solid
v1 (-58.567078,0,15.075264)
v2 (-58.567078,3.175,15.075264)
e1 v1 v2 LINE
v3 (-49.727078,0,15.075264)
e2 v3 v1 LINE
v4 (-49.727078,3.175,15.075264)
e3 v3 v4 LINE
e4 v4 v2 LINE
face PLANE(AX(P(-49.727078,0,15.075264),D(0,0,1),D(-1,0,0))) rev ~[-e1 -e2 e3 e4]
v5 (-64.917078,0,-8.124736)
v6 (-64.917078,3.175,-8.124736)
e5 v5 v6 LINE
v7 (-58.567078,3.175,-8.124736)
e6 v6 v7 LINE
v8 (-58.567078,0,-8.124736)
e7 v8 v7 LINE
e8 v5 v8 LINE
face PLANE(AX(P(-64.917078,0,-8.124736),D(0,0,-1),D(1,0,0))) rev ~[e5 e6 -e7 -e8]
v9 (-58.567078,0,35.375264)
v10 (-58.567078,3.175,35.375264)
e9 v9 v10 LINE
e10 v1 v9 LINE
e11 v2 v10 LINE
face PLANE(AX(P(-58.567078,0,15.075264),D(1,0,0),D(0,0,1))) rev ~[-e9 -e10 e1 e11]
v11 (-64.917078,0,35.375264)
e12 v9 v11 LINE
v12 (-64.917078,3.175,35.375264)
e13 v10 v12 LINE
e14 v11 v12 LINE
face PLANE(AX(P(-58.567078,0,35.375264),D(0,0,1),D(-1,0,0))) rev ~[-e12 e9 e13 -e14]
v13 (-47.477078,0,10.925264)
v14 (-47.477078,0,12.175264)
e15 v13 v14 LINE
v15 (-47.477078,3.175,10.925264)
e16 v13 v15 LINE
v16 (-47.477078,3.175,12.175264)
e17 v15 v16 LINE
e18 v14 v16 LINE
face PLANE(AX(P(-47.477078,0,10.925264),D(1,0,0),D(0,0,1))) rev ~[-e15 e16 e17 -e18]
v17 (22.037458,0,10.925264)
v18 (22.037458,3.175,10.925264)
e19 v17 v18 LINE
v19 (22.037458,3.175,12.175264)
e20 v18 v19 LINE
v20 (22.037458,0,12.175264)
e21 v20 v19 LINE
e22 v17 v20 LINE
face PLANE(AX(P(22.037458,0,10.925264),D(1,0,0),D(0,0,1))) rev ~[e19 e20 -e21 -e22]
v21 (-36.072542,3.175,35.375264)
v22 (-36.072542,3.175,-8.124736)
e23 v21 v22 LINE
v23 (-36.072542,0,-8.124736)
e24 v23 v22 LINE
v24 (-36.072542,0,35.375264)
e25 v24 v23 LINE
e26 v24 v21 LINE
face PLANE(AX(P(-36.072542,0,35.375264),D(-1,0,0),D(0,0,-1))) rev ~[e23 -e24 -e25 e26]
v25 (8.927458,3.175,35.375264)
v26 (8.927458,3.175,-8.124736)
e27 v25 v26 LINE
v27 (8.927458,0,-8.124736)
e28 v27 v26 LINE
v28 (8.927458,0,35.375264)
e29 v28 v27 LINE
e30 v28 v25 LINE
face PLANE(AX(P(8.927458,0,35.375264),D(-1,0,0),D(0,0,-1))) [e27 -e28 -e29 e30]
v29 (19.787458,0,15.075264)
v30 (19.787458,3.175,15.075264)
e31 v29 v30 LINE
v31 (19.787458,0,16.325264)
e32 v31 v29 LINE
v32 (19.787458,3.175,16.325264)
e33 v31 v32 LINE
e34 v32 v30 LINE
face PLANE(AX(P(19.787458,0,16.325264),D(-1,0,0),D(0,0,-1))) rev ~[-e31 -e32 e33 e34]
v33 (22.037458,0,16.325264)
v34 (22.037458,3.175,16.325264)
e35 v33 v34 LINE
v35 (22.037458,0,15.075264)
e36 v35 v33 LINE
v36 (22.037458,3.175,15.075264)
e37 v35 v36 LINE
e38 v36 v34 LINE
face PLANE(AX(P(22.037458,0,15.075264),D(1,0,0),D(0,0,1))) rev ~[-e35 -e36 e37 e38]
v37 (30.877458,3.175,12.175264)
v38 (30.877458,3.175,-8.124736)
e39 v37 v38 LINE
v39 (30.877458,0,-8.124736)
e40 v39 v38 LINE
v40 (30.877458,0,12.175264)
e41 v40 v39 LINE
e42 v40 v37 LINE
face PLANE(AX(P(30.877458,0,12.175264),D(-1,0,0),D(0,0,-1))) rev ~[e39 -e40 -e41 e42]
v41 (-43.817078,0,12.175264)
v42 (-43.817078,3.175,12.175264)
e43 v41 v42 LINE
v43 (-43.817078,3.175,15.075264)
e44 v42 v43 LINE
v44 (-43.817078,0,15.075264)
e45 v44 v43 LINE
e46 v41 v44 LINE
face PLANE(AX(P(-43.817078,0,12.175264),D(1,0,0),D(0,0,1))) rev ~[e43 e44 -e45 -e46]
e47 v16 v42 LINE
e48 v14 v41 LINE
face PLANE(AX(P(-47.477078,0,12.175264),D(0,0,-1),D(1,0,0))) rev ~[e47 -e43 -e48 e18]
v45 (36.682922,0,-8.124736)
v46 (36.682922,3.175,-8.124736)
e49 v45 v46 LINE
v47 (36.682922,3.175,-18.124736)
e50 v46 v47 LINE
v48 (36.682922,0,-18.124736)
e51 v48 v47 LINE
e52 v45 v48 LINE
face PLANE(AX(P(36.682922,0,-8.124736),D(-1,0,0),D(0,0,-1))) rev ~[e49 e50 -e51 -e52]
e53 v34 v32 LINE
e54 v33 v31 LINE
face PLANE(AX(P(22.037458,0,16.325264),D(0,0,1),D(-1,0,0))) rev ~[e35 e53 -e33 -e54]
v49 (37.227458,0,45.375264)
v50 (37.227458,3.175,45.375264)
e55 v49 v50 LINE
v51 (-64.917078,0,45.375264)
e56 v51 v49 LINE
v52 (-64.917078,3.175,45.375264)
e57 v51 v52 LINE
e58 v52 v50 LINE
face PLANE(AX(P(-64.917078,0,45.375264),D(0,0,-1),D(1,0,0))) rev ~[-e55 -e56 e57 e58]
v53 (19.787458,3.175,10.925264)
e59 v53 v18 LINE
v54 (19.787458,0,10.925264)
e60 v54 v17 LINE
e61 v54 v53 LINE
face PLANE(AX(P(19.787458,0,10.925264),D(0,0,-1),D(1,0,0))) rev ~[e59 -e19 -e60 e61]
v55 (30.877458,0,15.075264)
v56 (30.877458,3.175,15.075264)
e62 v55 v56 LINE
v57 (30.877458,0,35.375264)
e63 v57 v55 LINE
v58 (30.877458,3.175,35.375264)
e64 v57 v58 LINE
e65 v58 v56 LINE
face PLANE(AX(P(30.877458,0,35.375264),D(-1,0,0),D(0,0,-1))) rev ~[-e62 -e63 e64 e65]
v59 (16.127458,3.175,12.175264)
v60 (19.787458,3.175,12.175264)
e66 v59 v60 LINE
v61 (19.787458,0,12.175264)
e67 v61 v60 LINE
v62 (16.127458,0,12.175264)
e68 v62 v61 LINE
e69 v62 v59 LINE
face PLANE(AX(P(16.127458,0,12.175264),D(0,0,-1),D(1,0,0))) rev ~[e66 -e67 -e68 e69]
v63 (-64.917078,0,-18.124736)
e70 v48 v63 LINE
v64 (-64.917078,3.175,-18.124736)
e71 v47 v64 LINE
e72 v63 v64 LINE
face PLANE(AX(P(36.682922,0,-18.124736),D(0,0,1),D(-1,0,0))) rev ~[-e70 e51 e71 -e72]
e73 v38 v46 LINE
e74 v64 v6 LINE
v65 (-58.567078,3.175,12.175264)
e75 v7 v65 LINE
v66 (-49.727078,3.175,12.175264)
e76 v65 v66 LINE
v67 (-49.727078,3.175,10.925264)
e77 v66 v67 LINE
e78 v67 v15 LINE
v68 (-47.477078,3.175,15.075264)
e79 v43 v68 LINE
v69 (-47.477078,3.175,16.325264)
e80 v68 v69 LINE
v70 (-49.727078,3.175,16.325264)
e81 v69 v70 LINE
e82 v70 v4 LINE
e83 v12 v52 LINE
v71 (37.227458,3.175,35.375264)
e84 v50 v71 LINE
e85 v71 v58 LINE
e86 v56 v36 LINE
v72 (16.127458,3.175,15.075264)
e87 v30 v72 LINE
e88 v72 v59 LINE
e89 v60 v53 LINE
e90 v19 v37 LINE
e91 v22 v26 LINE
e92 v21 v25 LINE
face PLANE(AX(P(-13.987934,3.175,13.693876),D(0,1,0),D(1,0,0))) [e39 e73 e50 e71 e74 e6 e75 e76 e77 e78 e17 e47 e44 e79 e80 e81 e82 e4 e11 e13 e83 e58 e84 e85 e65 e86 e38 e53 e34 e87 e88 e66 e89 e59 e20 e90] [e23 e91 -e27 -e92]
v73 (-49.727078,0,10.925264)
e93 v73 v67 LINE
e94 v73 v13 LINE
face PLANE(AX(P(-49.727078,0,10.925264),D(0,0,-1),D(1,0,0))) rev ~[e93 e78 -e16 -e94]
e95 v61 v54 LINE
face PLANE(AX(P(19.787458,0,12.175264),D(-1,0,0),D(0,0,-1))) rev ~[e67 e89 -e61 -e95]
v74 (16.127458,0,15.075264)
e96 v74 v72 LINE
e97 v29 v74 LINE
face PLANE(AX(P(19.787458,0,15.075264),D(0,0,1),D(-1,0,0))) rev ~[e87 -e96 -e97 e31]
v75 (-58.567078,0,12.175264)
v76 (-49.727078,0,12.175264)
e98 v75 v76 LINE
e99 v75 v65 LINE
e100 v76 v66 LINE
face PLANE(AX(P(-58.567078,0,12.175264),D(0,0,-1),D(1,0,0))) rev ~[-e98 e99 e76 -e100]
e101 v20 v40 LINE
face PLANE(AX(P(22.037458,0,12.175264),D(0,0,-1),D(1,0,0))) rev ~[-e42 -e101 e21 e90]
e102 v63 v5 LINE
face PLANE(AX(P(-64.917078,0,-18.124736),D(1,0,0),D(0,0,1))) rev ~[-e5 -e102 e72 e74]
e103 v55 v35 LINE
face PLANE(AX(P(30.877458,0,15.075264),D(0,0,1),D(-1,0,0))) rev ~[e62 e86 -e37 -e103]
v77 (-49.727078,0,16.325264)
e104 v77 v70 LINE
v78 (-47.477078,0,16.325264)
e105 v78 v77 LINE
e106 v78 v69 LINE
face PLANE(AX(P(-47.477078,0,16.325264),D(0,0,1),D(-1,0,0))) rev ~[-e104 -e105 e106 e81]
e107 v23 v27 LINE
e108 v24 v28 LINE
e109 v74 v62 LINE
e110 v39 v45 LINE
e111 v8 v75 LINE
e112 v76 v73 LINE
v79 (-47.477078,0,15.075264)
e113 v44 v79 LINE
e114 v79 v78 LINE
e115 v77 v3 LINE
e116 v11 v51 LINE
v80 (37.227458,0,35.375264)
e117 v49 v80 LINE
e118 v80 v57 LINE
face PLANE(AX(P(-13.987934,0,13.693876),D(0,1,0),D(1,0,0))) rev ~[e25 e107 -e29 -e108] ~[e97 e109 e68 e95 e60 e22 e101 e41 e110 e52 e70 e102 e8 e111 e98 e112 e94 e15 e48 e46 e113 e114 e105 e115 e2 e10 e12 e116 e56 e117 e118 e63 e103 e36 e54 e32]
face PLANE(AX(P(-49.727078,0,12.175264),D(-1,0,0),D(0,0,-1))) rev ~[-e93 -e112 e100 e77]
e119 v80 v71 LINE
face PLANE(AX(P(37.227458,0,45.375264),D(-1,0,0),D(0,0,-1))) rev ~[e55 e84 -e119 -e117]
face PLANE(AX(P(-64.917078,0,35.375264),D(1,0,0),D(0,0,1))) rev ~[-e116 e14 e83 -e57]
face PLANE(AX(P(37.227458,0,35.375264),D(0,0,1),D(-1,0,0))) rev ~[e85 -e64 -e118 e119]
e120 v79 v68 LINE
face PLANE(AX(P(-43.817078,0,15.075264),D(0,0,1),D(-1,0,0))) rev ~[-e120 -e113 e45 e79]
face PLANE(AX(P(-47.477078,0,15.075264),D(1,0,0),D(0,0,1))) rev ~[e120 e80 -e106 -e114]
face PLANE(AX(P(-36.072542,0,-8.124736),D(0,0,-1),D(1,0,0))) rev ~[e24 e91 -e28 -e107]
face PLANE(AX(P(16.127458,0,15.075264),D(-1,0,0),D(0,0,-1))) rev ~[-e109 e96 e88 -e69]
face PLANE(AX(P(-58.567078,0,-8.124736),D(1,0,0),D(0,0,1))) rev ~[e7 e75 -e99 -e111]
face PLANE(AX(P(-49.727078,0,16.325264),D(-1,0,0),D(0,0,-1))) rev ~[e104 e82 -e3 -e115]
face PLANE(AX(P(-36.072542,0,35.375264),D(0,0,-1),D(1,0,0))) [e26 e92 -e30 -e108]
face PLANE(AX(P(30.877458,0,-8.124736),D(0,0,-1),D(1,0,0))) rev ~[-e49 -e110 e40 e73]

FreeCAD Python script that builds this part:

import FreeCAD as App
import Part
import Sketcher

doc = App.newDocument("Part")
params = doc.addObject("Spreadsheet::Sheet", "Params")
for row, (alias, value) in enumerate([
    ("sketch1_width", "45 mm"),
    ("sketch1_height", "10 mm"),
    ("sketch1_width2", "101.6 mm"),
    ("sketch1_height2", "20.3 mm"),
    ("sketch1_height3", "2.9 mm"),
    ("pad1_length", "3.175 mm"),
], start=1):
    params.set(f"A{row}", alias)
    params.set(f"B{row}", "=" + value)
    params.setAlias(f"B{row}", alias)

body = doc.addObject("PartDesign::Body", "Body")

# Sketch on XZ plane
sketch1 = body.newObject("Sketcher::SketchObject", "Sketch")
sketch1.AttachmentSupport = (doc.getObject("XZ_Plane"), [""])
sketch1.MapMode = "FlatFace"
sketch1.addGeometry(Part.LineSegment(App.Vector(37.2, 45.4, 0), App.Vector(37.2, 35.4, 0)), False)
sketch1.addGeometry(Part.LineSegment(App.Vector(37.2, 35.4, 0), App.Vector(30.9, 35.4, 0)), False)
sketch1.addGeometry(Part.LineSegment(App.Vector(30.9, 35.4, 0), App.Vector(30.9, 15.1, 0)), False)
sketch1.addGeometry(Part.LineSegment(App.Vector(30.9, 15.1, 0), App.Vector(22, 15.1, 0)), False)
sketch1.addGeometry(Part.LineSegment(App.Vector(22, 15.1, 0), App.Vector(22, 16.3, 0)), False)
sketch1.addGeometry(Part.LineSegment(App.Vector(22, 16.3, 0), App.Vector(19.8, 16.3, 0)), False)
sketch1.addGeometry(Part.LineSegment(App.Vector(19.8, 16.3, 0), App.Vector(19.8, 15.1, 0)), False)
sketch1.addGeometry(Part.LineSegment(App.Vector(19.8, 15.1, 0), App.Vector(16.1, 15.1, 0)), False)
sketch1.addGeometry(Part.LineSegment(App.Vector(16.1, 15.1, 0), App.Vector(16.1, 12.2, 0)), False)
sketch1.addGeometry(Part.LineSegment(App.Vector(16.1, 12.2, 0), App.Vector(19.8, 12.2, 0)), False)
sketch1.addGeometry(Part.LineSegment(App.Vector(19.8, 12.2, 0), App.Vector(19.8, 10.9, 0)), False)
sketch1.addGeometry(Part.LineSegment(App.Vector(19.8, 10.9, 0), App.Vector(22, 10.9, 0)), False)
sketch1.addGeometry(Part.LineSegment(App.Vector(22, 10.9, 0), App.Vector(22, 12.2, 0)), False)
sketch1.addGeometry(Part.LineSegment(App.Vector(22, 12.2, 0), App.Vector(30.9, 12.2, 0)), False)
sketch1.addGeometry(Part.LineSegment(App.Vector(30.9, 12.2, 0), App.Vector(30.9, -8.1, 0)), False)
sketch1.addGeometry(Part.LineSegment(App.Vector(30.9, -8.1, 0), App.Vector(36.7, -8.1, 0)), False)
sketch1.addGeometry(Part.LineSegment(App.Vector(36.7, -8.1, 0), App.Vector(36.7, -18.1, 0)), False)
sketch1.addGeometry(Part.LineSegment(App.Vector(36.7, -18.1, 0), App.Vector(-64.9, -18.1, 0)), False)
sketch1.addGeometry(Part.LineSegment(App.Vector(-64.9, -18.1, 0), App.Vector(-64.9, -8.1, 0)), False)
sketch1.addGeometry(Part.LineSegment(App.Vector(-64.9, -8.1, 0), App.Vector(-58.6, -8.1, 0)), False)
sketch1.addGeometry(Part.LineSegment(App.Vector(-58.6, -8.1, 0), App.Vector(-58.6, 12.2, 0)), False)
sketch1.addGeometry(Part.LineSegment(App.Vector(-58.6, 12.2, 0), App.Vector(-49.7, 12.2, 0)), False)
sketch1.addGeometry(Part.LineSegment(App.Vector(-49.7, 12.2, 0), App.Vector(-49.7, 10.9, 0)), False)
sketch1.addGeometry(Part.LineSegment(App.Vector(-49.7, 10.9, 0), App.Vector(-47.5, 10.9, 0)), False)
sketch1.addGeometry(Part.LineSegment(App.Vector(-47.5, 10.9, 0), App.Vector(-47.5, 12.2, 0)), False)
sketch1.addGeometry(Part.LineSegment(App.Vector(-47.5, 12.2, 0), App.Vector(-43.8, 12.2, 0)), False)
sketch1.addGeometry(Part.LineSegment(App.Vector(-43.8, 12.2, 0), App.Vector(-43.8, 15.1, 0)), False)
sketch1.addGeometry(Part.LineSegment(App.Vector(-43.8, 15.1, 0), App.Vector(-47.5, 15.1, 0)), False)
sketch1.addGeometry(Part.LineSegment(App.Vector(-47.5, 15.1, 0), App.Vector(-47.5, 16.3, 0)), False)
sketch1.addGeometry(Part.LineSegment(App.Vector(-47.5, 16.3, 0), App.Vector(-49.7, 16.3, 0)), False)
sketch1.addGeometry(Part.LineSegment(App.Vector(-49.7, 16.3, 0), App.Vector(-49.7, 15.1, 0)), False)
sketch1.addGeometry(Part.LineSegment(App.Vector(-49.7, 15.1, 0), App.Vector(-58.6, 15.1, 0)), False)
sketch1.addGeometry(Part.LineSegment(App.Vector(-58.6, 15.1, 0), App.Vector(-58.6, 35.4, 0)), False)
sketch1.addGeometry(Part.LineSegment(App.Vector(-58.6, 35.4, 0), App.Vector(-64.9, 35.4, 0)), False)
sketch1.addGeometry(Part.LineSegment(App.Vector(-64.9, 35.4, 0), App.Vector(-64.9, 45.4, 0)), False)
sketch1.addGeometry(Part.LineSegment(App.Vector(-64.9, 45.4, 0), App.Vector(37.2, 45.4, 0)), False)
sketch1.addGeometry(Part.LineSegment(App.Vector(8.9, 35.4, 0), App.Vector(-36.1, 35.4, 0)), False)
sketch1.addGeometry(Part.LineSegment(App.Vector(-36.1, 35.4, 0), App.Vector(-36.1, -8.1, 0)), False)
sketch1.addGeometry(Part.LineSegment(App.Vector(-36.1, -8.1, 0), App.Vector(8.9, -8.1, 0)), False)
sketch1.addGeometry(Part.LineSegment(App.Vector(8.9, -8.1, 0), App.Vector(8.9, 35.4, 0)), False)
sketch1.addConstraint(Sketcher.Constraint("Coincident", 0, 2, 1, 1))
sketch1.addConstraint(Sketcher.Constraint("Coincident", 1, 2, 2, 1))
sketch1.addConstraint(Sketcher.Constraint("Coincident", 2, 2, 3, 1))
sketch1.addConstraint(Sketcher.Constraint("Coincident", 3, 2, 4, 1))
sketch1.addConstraint(Sketcher.Constraint("Coincident", 4, 2, 5, 1))
sketch1.addConstraint(Sketcher.Constraint("Coincident", 5, 2, 6, 1))
sketch1.addConstraint(Sketcher.Constraint("Coincident", 6, 2, 7, 1))
sketch1.addConstraint(Sketcher.Constraint("Coincident", 7, 2, 8, 1))
sketch1.addConstraint(Sketcher.Constraint("Coincident", 8, 2, 9, 1))
sketch1.addConstraint(Sketcher.Constraint("Coincident", 9, 2, 10, 1))
sketch1.addConstraint(Sketcher.Constraint("Coincident", 10, 2, 11, 1))
sketch1.addConstraint(Sketcher.Constraint("Coincident", 11, 2, 12, 1))
sketch1.addConstraint(Sketcher.Constraint("Coincident", 12, 2, 13, 1))
sketch1.addConstraint(Sketcher.Constraint("Coincident", 13, 2, 14, 1))
sketch1.addConstraint(Sketcher.Constraint("Coincident", 14, 2, 15, 1))
sketch1.addConstraint(Sketcher.Constraint("Coincident", 15, 2, 16, 1))
sketch1.addConstraint(Sketcher.Constraint("Coincident", 16, 2, 17, 1))
sketch1.addConstraint(Sketcher.Constraint("Coincident", 17, 2, 18, 1))
sketch1.addConstraint(Sketcher.Constraint("Coincident", 18, 2, 19, 1))
sketch1.addConstraint(Sketcher.Constraint("Coincident", 19, 2, 20, 1))
sketch1.addConstraint(Sketcher.Constraint("Coincident", 20, 2, 21, 1))
sketch1.addConstraint(Sketcher.Constraint("Coincident", 21, 2, 22, 1))
sketch1.addConstraint(Sketcher.Constraint("Coincident", 22, 2, 23, 1))
sketch1.addConstraint(Sketcher.Constraint("Coincident", 23, 2, 24, 1))
sketch1.addConstraint(Sketcher.Constraint("Coincident", 24, 2, 25, 1))
sketch1.addConstraint(Sketcher.Constraint("Coincident", 25, 2, 26, 1))
sketch1.addConstraint(Sketcher.Constraint("Coincident", 26, 2, 27, 1))
sketch1.addConstraint(Sketcher.Constraint("Coincident", 27, 2, 28, 1))
sketch1.addConstraint(Sketcher.Constraint("Coincident", 28, 2, 29, 1))
sketch1.addConstraint(Sketcher.Constraint("Coincident", 29, 2, 30, 1))
sketch1.addConstraint(Sketcher.Constraint("Coincident", 30, 2, 31, 1))
sketch1.addConstraint(Sketcher.Constraint("Coincident", 31, 2, 32, 1))
sketch1.addConstraint(Sketcher.Constraint("Coincident", 32, 2, 33, 1))
sketch1.addConstraint(Sketcher.Constraint("Coincident", 33, 2, 34, 1))
sketch1.addConstraint(Sketcher.Constraint("Coincident", 34, 2, 35, 1))
sketch1.addConstraint(Sketcher.Constraint("Coincident", 35, 2, 0, 1))
sketch1.addConstraint(Sketcher.Constraint("Coincident", 36, 2, 37, 1))
sketch1.addConstraint(Sketcher.Constraint("Coincident", 37, 2, 38, 1))
sketch1.addConstraint(Sketcher.Constraint("Coincident", 38, 2, 39, 1))
sketch1.addConstraint(Sketcher.Constraint("Coincident", 39, 2, 36, 1))
sketch1.addConstraint(Sketcher.Constraint("Vertical", 0))
sketch1.addConstraint(Sketcher.Constraint("Horizontal", 1))
sketch1.addConstraint(Sketcher.Constraint("Vertical", 2))
sketch1.addConstraint(Sketcher.Constraint("Horizontal", 3))
sketch1.addConstraint(Sketcher.Constraint("Vertical", 4))
sketch1.addConstraint(Sketcher.Constraint("Horizontal", 5))
sketch1.addConstraint(Sketcher.Constraint("Vertical", 6))
sketch1.addConstraint(Sketcher.Constraint("Horizontal", 7))
sketch1.addConstraint(Sketcher.Constraint("Vertical", 8))
sketch1.addConstraint(Sketcher.Constraint("Horizontal", 9))
sketch1.addConstraint(Sketcher.Constraint("Vertical", 10))
sketch1.addConstraint(Sketcher.Constraint("Horizontal", 11))
sketch1.addConstraint(Sketcher.Constraint("Vertical", 12))
sketch1.addConstraint(Sketcher.Constraint("Horizontal", 13))
sketch1.addConstraint(Sketcher.Constraint("Vertical", 14))
sketch1.addConstraint(Sketcher.Constraint("Horizontal", 15))
sketch1.addConstraint(Sketcher.Constraint("Vertical", 16))
sketch1.addConstraint(Sketcher.Constraint("Horizontal", 17))
sketch1.addConstraint(Sketcher.Constraint("Vertical", 18))
sketch1.addConstraint(Sketcher.Constraint("Horizontal", 19))
sketch1.addConstraint(Sketcher.Constraint("Vertical", 20))
sketch1.addConstraint(Sketcher.Constraint("Horizontal", 21))
sketch1.addConstraint(Sketcher.Constraint("Vertical", 22))
sketch1.addConstraint(Sketcher.Constraint("Horizontal", 23))
sketch1.addConstraint(Sketcher.Constraint("Vertical", 24))
sketch1.addConstraint(Sketcher.Constraint("Horizontal", 25))
sketch1.addConstraint(Sketcher.Constraint("Vertical", 26))
sketch1.addConstraint(Sketcher.Constraint("Horizontal", 27))
sketch1.addConstraint(Sketcher.Constraint("Vertical", 28))
sketch1.addConstraint(Sketcher.Constraint("Horizontal", 29))
sketch1.addConstraint(Sketcher.Constraint("Vertical", 30))
sketch1.addConstraint(Sketcher.Constraint("Horizontal", 31))
sketch1.addConstraint(Sketcher.Constraint("Vertical", 32))
sketch1.addConstraint(Sketcher.Constraint("Horizontal", 33))
sketch1.addConstraint(Sketcher.Constraint("Vertical", 34))
sketch1.addConstraint(Sketcher.Constraint("Horizontal", 35))
sketch1.addConstraint(Sketcher.Constraint("Horizontal", 36))
sketch1.addConstraint(Sketcher.Constraint("Vertical", 37))
sketch1.addConstraint(Sketcher.Constraint("Horizontal", 38))
sketch1.addConstraint(Sketcher.Constraint("Vertical", 39))
sketch1.addConstraint(Sketcher.Constraint("Horizontal", 3, 2, 6, 2))
sketch1.addConstraint(Sketcher.Constraint("Horizontal", 9, 2, 12, 2))
sketch1.addConstraint(Sketcher.Constraint("Horizontal", 15, 2, 18, 2))
sketch1.addConstraint(Sketcher.Constraint("Horizontal", 13, 2, 20, 2))
sketch1.addConstraint(Sketcher.Constraint("Horizontal", 11, 2, 22, 2))
sketch1.addConstraint(Sketcher.Constraint("Horizontal", 21, 2, 24, 2))
sketch1.addConstraint(Sketcher.Constraint("Horizontal", 7, 2, 26, 2))
sketch1.addConstraint(Sketcher.Constraint("Horizontal", 5, 2, 28, 2))
sketch1.addConstraint(Sketcher.Constraint("Horizontal", 27, 2, 30, 2))
sketch1.addConstraint(Sketcher.Constraint("Horizontal", 1, 2, 32, 2))
sketch1.addConstraint(Sketcher.Constraint("Horizontal", 33, 2, 36, 2))
sketch1.addConstraint(Sketcher.Constraint("Horizontal", 19, 2, 37, 2))
sketch1.addConstraint(Sketcher.Constraint("Vertical", 6, 2, 9, 2))
sketch1.addConstraint(Sketcher.Constraint("Vertical", 4, 2, 11, 2))
sketch1.addConstraint(Sketcher.Constraint("Vertical", 2, 2, 13, 2))
sketch1.addConstraint(Sketcher.Constraint("Vertical", 24, 2, 27, 2))
sketch1.addConstraint(Sketcher.Constraint("Vertical", 22, 2, 29, 2))
sketch1.addConstraint(Sketcher.Constraint("Vertical", 20, 2, 31, 2))
sketch1.addConstraint(Sketcher.Constraint("Vertical", 18, 2, 33, 2))
sketch1.addConstraint(Sketcher.Constraint("Equal", 1, 19))
sketch1.addConstraint(Sketcher.Constraint("Equal", 13, 21))
sketch1.addConstraint(Sketcher.Constraint("Equal", 11, 23))
sketch1.addConstraint(Sketcher.Constraint("Equal", 9, 25))
sketch1.addConstraint(Sketcher.Constraint("Equal", 6, 10))
sketch1.addConstraint(Sketcher.Constraint("Equal", 2, 14))
sketch1.addConstraint(Sketcher.Constraint("Equal", 0, 16))
sketch1.addConstraint(Sketcher.Constraint("DistanceX", 36, 2, 36, 1, 45.0))
sketch1.addConstraint(Sketcher.Constraint("DistanceY", 0, 2, 0, 1, 10.0))
sketch1.addConstraint(Sketcher.Constraint("DistanceX", 17, 2, 17, 1, 101.6))
sketch1.addConstraint(Sketcher.Constraint("DistanceY", 2, 2, 2, 1, 20.3))
sketch1.addConstraint(Sketcher.Constraint("DistanceY", 8, 2, 8, 1, 2.9))
sketch1.addConstraint(Sketcher.Constraint("DistanceX", 1, 2, 1, 1, 6.35))
sketch1.addConstraint(Sketcher.Constraint("DistanceX", 3, 2, 3, 1, 8.84))
sketch1.addConstraint(Sketcher.Constraint("DistanceX", 5, 2, 5, 1, 2.25))
sketch1.addConstraint(Sketcher.Constraint("DistanceX", 7, 2, 7, 1, 3.66))
sketch1.addConstraint(Sketcher.Constraint("DistanceY", 4, 1, 4, 2, 1.25))
sketch1.addConstraint(Sketcher.Constraint("DistanceX", 38, 2, 8, 2, 7.2))
sketch1.addConstraint(Sketcher.Constraint("DistanceX", 15, 1, 15, 2, 5.805464))
sketch1.addConstraint(Sketcher.Constraint("DistanceX", -1, 1, 15, 2, 36.682922))
sketch1.addConstraint(Sketcher.Constraint("DistanceY", -1, 1, 0, 2, 35.375264))
sketch1.setExpression("Constraints[106]", "Params.sketch1_width")
sketch1.setExpression("Constraints[107]", "Params.sketch1_height")
sketch1.setExpression("Constraints[108]", "Params.sketch1_width2")
sketch1.setExpression("Constraints[109]", "Params.sketch1_height2")
sketch1.setExpression("Constraints[110]", "Params.sketch1_height3")
pad1 = body.newObject("PartDesign::Pad", "Pad")
pad1.Profile = sketch1
pad1.setExpression("Length", "Params.pad1_length")
pad1.Reversed = True

doc.recompute()
